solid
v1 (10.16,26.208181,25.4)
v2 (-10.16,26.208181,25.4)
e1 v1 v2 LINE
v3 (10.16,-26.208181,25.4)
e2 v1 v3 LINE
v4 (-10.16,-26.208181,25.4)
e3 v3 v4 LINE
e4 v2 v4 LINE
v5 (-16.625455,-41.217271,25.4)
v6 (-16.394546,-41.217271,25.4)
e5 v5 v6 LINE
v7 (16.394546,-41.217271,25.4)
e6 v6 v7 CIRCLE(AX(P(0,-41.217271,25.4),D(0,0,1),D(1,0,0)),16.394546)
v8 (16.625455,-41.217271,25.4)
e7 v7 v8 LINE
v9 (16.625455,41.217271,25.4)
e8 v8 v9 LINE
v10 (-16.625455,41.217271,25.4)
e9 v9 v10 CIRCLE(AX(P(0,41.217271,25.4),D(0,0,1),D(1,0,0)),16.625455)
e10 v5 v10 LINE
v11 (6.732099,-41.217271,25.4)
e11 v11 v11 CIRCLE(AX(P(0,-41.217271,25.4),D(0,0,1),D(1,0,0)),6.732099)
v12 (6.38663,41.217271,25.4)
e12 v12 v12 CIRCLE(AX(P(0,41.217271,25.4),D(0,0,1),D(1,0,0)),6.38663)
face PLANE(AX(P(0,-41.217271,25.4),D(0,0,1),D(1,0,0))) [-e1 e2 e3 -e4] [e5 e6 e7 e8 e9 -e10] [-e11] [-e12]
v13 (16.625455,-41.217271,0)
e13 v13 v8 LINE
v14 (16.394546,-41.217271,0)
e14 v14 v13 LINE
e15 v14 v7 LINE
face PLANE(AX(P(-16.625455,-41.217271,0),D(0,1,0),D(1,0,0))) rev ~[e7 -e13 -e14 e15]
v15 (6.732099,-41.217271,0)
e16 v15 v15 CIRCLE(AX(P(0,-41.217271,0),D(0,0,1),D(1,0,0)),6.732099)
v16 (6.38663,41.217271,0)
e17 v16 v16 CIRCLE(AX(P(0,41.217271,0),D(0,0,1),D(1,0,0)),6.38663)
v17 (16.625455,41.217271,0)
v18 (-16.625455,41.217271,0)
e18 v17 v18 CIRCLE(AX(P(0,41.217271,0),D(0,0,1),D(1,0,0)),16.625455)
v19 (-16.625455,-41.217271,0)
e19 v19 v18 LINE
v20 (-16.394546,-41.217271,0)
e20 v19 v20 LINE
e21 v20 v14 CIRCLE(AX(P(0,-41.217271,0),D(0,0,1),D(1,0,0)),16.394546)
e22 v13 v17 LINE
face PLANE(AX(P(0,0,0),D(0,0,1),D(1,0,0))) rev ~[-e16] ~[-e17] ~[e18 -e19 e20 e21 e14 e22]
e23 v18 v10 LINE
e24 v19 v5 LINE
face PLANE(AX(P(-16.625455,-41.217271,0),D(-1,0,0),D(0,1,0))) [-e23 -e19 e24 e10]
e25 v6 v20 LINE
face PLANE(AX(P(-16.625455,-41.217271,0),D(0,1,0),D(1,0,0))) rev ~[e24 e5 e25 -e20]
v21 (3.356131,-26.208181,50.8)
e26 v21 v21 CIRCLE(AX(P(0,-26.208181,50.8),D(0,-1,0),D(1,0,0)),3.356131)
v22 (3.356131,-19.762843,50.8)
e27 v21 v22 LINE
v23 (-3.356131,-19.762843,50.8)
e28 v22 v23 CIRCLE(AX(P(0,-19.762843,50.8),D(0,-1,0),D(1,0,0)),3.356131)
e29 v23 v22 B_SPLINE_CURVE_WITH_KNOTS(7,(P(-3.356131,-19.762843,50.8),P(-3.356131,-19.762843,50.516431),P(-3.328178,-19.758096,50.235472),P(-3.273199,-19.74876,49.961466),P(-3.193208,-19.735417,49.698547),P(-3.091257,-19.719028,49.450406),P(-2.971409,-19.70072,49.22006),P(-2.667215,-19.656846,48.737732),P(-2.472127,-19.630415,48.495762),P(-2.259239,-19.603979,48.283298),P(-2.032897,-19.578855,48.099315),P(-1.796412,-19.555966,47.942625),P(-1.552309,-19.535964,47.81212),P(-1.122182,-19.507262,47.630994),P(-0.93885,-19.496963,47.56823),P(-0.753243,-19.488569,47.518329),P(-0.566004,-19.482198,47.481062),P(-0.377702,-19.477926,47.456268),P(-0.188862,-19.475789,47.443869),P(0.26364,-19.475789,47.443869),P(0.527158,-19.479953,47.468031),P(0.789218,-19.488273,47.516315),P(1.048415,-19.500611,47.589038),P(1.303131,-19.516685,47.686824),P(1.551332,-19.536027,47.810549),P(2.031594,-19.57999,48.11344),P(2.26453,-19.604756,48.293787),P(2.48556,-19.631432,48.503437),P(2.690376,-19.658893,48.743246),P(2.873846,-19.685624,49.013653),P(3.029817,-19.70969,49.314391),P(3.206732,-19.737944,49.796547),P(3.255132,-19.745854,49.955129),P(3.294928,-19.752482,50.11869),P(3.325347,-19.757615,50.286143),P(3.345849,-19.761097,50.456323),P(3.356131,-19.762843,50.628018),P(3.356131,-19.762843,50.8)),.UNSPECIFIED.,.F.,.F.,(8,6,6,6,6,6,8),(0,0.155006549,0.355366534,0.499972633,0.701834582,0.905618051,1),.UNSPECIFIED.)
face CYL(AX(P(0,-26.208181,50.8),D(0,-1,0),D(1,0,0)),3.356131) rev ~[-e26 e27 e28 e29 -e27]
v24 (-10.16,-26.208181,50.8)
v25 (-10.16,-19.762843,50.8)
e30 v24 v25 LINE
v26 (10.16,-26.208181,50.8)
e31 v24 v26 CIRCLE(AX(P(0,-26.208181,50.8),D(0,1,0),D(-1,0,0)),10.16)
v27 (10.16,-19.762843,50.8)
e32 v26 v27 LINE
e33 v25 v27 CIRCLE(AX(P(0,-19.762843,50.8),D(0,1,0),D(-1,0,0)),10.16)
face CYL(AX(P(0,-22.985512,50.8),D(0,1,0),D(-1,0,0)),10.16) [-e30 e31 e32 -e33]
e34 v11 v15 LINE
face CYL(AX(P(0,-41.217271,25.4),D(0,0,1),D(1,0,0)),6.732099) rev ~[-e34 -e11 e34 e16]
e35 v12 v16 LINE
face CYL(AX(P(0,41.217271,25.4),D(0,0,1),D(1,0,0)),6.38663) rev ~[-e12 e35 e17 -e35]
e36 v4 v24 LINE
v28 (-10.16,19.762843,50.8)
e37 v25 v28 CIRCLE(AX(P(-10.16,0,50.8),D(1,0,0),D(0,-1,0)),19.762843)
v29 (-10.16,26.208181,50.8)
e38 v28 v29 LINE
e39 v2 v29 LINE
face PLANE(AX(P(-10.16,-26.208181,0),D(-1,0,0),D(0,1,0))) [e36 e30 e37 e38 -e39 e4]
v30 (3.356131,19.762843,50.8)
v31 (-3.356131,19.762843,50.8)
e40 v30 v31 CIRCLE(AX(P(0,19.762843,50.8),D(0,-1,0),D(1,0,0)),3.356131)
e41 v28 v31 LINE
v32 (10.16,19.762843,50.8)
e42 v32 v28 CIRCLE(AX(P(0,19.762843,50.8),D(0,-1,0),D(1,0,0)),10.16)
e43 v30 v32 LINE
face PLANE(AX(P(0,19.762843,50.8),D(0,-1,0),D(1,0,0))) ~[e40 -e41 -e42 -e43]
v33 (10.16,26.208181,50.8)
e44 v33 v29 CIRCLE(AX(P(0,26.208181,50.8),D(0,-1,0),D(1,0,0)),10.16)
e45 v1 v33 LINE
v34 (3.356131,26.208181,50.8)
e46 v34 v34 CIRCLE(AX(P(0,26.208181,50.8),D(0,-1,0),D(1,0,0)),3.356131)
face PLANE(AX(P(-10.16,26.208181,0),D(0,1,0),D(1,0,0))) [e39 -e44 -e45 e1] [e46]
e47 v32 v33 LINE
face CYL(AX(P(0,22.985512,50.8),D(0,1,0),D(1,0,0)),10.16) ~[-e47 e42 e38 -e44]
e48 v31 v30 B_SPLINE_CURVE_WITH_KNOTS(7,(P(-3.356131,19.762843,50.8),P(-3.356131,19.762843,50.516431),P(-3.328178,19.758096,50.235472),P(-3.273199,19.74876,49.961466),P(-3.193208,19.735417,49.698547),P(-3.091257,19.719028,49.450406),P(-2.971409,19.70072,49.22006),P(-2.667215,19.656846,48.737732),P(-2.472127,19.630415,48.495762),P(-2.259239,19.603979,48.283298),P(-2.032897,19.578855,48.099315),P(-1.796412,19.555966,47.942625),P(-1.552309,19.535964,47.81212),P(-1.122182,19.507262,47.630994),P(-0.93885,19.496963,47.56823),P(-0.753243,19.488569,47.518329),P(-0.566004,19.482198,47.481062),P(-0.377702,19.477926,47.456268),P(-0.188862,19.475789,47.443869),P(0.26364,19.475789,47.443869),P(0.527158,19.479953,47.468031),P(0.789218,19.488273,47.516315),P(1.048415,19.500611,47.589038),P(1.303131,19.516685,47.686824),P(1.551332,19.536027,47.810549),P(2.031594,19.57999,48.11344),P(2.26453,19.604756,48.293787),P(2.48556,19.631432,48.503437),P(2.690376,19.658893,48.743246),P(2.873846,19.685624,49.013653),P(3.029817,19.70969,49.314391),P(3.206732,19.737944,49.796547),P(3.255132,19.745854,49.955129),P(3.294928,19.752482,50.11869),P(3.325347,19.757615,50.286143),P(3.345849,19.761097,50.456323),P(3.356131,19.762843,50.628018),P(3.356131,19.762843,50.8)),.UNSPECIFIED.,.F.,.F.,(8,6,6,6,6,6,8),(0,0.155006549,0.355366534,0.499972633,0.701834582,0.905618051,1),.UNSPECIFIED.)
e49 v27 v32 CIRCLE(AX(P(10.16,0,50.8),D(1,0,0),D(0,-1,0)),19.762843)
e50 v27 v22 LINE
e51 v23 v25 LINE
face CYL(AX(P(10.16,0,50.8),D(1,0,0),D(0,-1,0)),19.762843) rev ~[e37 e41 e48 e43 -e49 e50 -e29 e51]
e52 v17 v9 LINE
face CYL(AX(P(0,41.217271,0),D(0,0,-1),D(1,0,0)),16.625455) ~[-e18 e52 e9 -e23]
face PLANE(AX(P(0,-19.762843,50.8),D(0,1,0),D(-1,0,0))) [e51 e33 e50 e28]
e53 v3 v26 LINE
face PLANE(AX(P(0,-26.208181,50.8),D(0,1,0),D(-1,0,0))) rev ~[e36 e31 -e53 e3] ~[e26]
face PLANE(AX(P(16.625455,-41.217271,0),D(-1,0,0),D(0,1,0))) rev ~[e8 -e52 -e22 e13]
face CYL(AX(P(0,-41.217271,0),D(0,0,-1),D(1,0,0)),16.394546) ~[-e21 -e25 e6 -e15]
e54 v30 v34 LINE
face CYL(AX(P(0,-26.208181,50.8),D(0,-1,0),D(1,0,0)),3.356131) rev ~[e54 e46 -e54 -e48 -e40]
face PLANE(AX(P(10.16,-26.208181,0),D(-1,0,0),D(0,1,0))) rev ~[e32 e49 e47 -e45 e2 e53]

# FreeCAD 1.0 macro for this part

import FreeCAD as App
import Part
import Sketcher

V = App.Vector
Q = App.Units.Quantity

doc = App.newDocument("Part")
params = doc.addObject("Spreadsheet::Sheet", "Params")
for row, (alias, value) in enumerate([
    ("pad1_length", "1 in"),
    ("pad2_length", "1 in"),
    ("pad3_length", "1 in"),
    ("sketch5_width", "0.8 in"),
    ("pad4_length", "2 in"),
    ("sketch7_width", "0.4 in"),
    ("revolution_angle", "360 deg"),
    ("sketch8_width", "0.4 in"),
    ("revolution2_angle", "360 deg"),
], start=1):
    params.set(f"A{row}", alias)
    params.set(f"B{row}", "=" + value)
    params.setAlias(f"B{row}", alias)

body = doc.addObject("PartDesign::Body", "Body")

sketch1 = body.newObject("Sketcher::SketchObject", "Sketch")
sketch1.AttachmentSupport = (doc.getObject("XY_Plane"), [""])
sketch1.MapMode = "FlatFace"
sketch1.addGeometry([
    Part.LineSegment(V(-17, 41, 0), V(-17, -41, 0)),
    Part.LineSegment(V(-17, -41, 0), V(17, -41, 0)),
    Part.LineSegment(V(17, -41, 0), V(17, 41, 0)),
    Part.LineSegment(V(17, 41, 0), V(-17, 41, 0)),
], False)
sketch1.addConstraint([
    Sketcher.Constraint("Coincident", 0, 2, 1, 1),
    Sketcher.Constraint("Coincident", 1, 2, 2, 1),
    Sketcher.Constraint("Coincident", 2, 2, 3, 1),
    Sketcher.Constraint("Coincident", 3, 2, 0, 1),
    Sketcher.Constraint("Vertical", 0),
    Sketcher.Constraint("Horizontal", 1),
    Sketcher.Constraint("Vertical", 2),
    Sketcher.Constraint("Horizontal", 3),
    Sketcher.Constraint("Symmetric", 0, 2, 2, 2, -1, 1),
    Sketcher.Constraint("DistanceX", 1, 1, 1, 2, Q("33.25091 mm")),
    Sketcher.Constraint("DistanceY", 0, 2, 0, 1, Q("82.434542 mm")),
])
pad1 = body.newObject("PartDesign::Pad", "Pad")
pad1.Profile = sketch1
pad1.setExpression("Length", "Params.pad1_length")

sketch2 = body.newObject("Sketcher::SketchObject", "Sketch001")
sketch2.AttachmentSupport = (doc.getObject("XY_Plane"), [""])
sketch2.MapMode = "FlatFace"
sketch2.addGeometry(Part.Circle(V(0, 41, 0), V(0, 0, 1), 17), False)
sketch2.addConstraint([
    Sketcher.Constraint("PointOnObject", 0, 3, -2),
    Sketcher.Constraint("Diameter", 0, Q("33.25091 mm")),
    Sketcher.Constraint("DistanceY", -1, 1, 0, 3, Q("41.217271 mm")),
])
pad2 = body.newObject("PartDesign::Pad", "Pad001")
pad2.Profile = sketch2
pad2.setExpression("Length", "Params.pad2_length")

sketch3 = body.newObject("Sketcher::SketchObject", "Sketch002")
sketch3.AttachmentSupport = (doc.getObject("XY_Plane"), [""])
sketch3.MapMode = "FlatFace"
sketch3.addGeometry(Part.Circle(V(0, -41, 0), V(0, 0, 1), 16), False)
sketch3.addConstraint([
    Sketcher.Constraint("PointOnObject", 0, 3, -2),
    Sketcher.Constraint("Diameter", 0, Q("32.789092 mm")),
    Sketcher.Constraint("DistanceY", 0, 3, -1, 1, Q("41.217271 mm")),
])
pad3 = body.newObject("PartDesign::Pad", "Pad002")
pad3.Profile = sketch3
pad3.setExpression("Length", "Params.pad3_length")

sketch4 = body.newObject("Sketcher::SketchObject", "Sketch003")
sketch4.AttachmentSupport = (doc.getObject("XY_Plane"), [""])
sketch4.MapMode = "FlatFace"
sketch4.AttachmentOffset = App.Placement(V(0, 0, 1 * 25.4), App.Rotation())
sketch4.addGeometry([
    Part.Circle(V(0, 41, 0), V(0, 0, 1), 6),
    Part.Circle(V(0, -41, 0), V(0, 0, 1), 7),
], False)
sketch4.addConstraint([
    Sketcher.Constraint("Symmetric", 0, 3, 1, 3, -1, 1),
    Sketcher.Constraint("PointOnObject", 0, 3, -2),
    Sketcher.Constraint("Diameter", 0, Q("12.77326 mm")),
    Sketcher.Constraint("Diameter", 1, Q("13.464198 mm")),
    Sketcher.Constraint("DistanceY", -1, 1, 0, 3, Q("41.217271 mm")),
])
pocket1 = body.newObject("PartDesign::Pocket", "Pocket")
pocket1.Profile = sketch4
pocket1.Type = "ThroughAll"

sketch5 = body.newObject("Sketcher::SketchObject", "Sketch004")
sketch5.AttachmentSupport = (doc.getObject("XY_Plane"), [""])
sketch5.MapMode = "FlatFace"
sketch5.addGeometry([
    Part.LineSegment(V(-10, 26, 0), V(-10, -26, 0)),
    Part.LineSegment(V(-10, -26, 0), V(10, -26, 0)),
    Part.LineSegment(V(10, -26, 0), V(10, 26, 0)),
    Part.LineSegment(V(10, 26, 0), V(-10, 26, 0)),
], False)
sketch5.addConstraint([
    Sketcher.Constraint("Coincident", 0, 2, 1, 1),
    Sketcher.Constraint("Coincident", 1, 2, 2, 1),
    Sketcher.Constraint("Coincident", 2, 2, 3, 1),
    Sketcher.Constraint("Coincident", 3, 2, 0, 1),
    Sketcher.Constraint("Vertical", 0),
    Sketcher.Constraint("Horizontal", 1),
    Sketcher.Constraint("Vertical", 2),
    Sketcher.Constraint("Horizontal", 3),
    Sketcher.Constraint("Symmetric", 0, 2, 2, 2, -1, 1),
    Sketcher.Constraint("DistanceX", 1, 1, 1, 2, Q("0.8 in")),
    Sketcher.Constraint("DistanceY", 0, 2, 0, 1, Q("52.416362 mm")),
])
sketch5.setExpression("Constraints[9]", "Params.sketch5_width")
pad4 = body.newObject("PartDesign::Pad", "Pad003")
pad4.Profile = sketch5
pad4.setExpression("Length", "Params.pad4_length")

sketch6 = body.newObject("Sketcher::SketchObject", "Sketch005")
sketch6.AttachmentSupport = (doc.getObject("YZ_Plane"), [""])
sketch6.MapMode = "FlatFace"
sketch6.AttachmentOffset = App.Placement(V(0, 0, 0.4 * 25.4), App.Rotation())
sketch6.addGeometry(Part.Circle(V(0, 51, 0), V(0, 0, 1), 20), False)
sketch6.addConstraint([
    Sketcher.Constraint("PointOnObject", 0, 3, -2),
    Sketcher.Constraint("DistanceY", -1, 1, 0, 3, Q("2 in")),
    Sketcher.Constraint("Diameter", 0, Q("39.525686 mm")),
])
pocket2 = body.newObject("PartDesign::Pocket", "Pocket001")
pocket2.Profile = sketch6
pocket2.Type = "ThroughAll"

sketch7 = body.newObject("Sketcher::SketchObject", "Sketch006")
sketch7.AttachmentSupport = (doc.getObject("XY_Plane"), [""])
sketch7.MapMode = "FlatFace"
sketch7.AttachmentOffset = App.Placement(V(0, 0, 2 * 25.4), App.Rotation())
sketch7.addGeometry([
    Part.LineSegment(V(0, 26, 0), V(0, 20, 0)),
    Part.LineSegment(V(0, 20, 0), V(10, 20, 0)),
    Part.LineSegment(V(10, 20, 0), V(10, 26, 0)),
    Part.LineSegment(V(10, 26, 0), V(0, 26, 0)),
], False)
sketch7.addConstraint([
    Sketcher.Constraint("Coincident", 0, 2, 1, 1),
    Sketcher.Constraint("Coincident", 1, 2, 2, 1),
    Sketcher.Constraint("Coincident", 2, 2, 3, 1),
    Sketcher.Constraint("Coincident", 3, 2, 0, 1),
    Sketcher.Constraint("Vertical", 0),
    Sketcher.Constraint("Horizontal", 1),
    Sketcher.Constraint("Vertical", 2),
    Sketcher.Constraint("Horizontal", 3),
    Sketcher.Constraint("PointOnObject", 0, 2, -2),
    Sketcher.Constraint("DistanceX", 1, 1, 1, 2, Q("0.4 in")),
    Sketcher.Constraint("DistanceY", 0, 2, 0, 1, Q("6.445338 mm")),
    Sketcher.Constraint("DistanceY", -1, 1, 2, 2, Q("26.208181 mm")),
])
sketch7.setExpression("Constraints[9]", "Params.sketch7_width")
revolution = body.newObject("PartDesign::Revolution", "Revolution")
revolution.Profile = sketch7
revolution.ReferenceAxis = (sketch7, ["V_Axis"])
revolution.setExpression("Angle", "Params.revolution_angle")

sketch8 = body.newObject("Sketcher::SketchObject", "Sketch007")
sketch8.AttachmentSupport = (doc.getObject("XY_Plane"), [""])
sketch8.MapMode = "FlatFace"
sketch8.AttachmentOffset = App.Placement(V(0, 0, 2 * 25.4), App.Rotation())
sketch8.addGeometry([
    Part.LineSegment(V(-10, -20, 0), V(-10, -26, 0)),
    Part.LineSegment(V(-10, -26, 0), V(0, -26, 0)),
    Part.LineSegment(V(0, -26, 0), V(0, -20, 0)),
    Part.LineSegment(V(0, -20, 0), V(-10, -20, 0)),
], False)
sketch8.addConstraint([
    Sketcher.Constraint("Coincident", 0, 2, 1, 1),
    Sketcher.Constraint("Coincident", 1, 2, 2, 1),
    Sketcher.Constraint("Coincident", 2, 2, 3, 1),
    Sketcher.Constraint("Coincident", 3, 2, 0, 1),
    Sketcher.Constraint("Vertical", 0),
    Sketcher.Constraint("Horizontal", 1),
    Sketcher.Constraint("Vertical", 2),
    Sketcher.Constraint("Horizontal", 3),
    Sketcher.Constraint("PointOnObject", 1, 2, -2),
    Sketcher.Constraint("DistanceX", 1, 1, 1, 2, Q("0.4 in")),
    Sketcher.Constraint("DistanceY", 0, 2, 0, 1, Q("6.445338 mm")),
    Sketcher.Constraint("DistanceY", 0, 2, -1, 1, Q("26.208181 mm")),
])
sketch8.setExpression("Constraints[9]", "Params.sketch8_width")
revolution2 = body.newObject("PartDesign::Revolution", "Revolution001")
revolution2.Profile = sketch8
revolution2.ReferenceAxis = (sketch8, ["V_Axis"])
revolution2.setExpression("Angle", "Params.revolution2_angle")

sketch9 = body.newObject("Sketcher::SketchObject", "Sketch008")
sketch9.AttachmentSupport = (doc.getObject("XZ_Plane"), [""])
sketch9.MapMode = "FlatFace"
sketch9.AttachmentOffset = App.Placement(V(0, 0, 26.208181), App.Rotation())
sketch9.addGeometry(Part.Circle(V(0, 50.8, 0), V(0, 0, 1), 3.4), False)
sketch9.addConstraint([
    Sketcher.Constraint("PointOnObject", 0, 3, -2),
    Sketcher.Constraint("DistanceY", -1, 1, 0, 3, Q("2 in")),
    Sketcher.Constraint("Diameter", 0, Q("6.712262 mm")),
])
pocket3 = body.newObject("PartDesign::Pocket", "Pocket002")
pocket3.Profile = sketch9
pocket3.Type = "ThroughAll"

doc.recompute()
